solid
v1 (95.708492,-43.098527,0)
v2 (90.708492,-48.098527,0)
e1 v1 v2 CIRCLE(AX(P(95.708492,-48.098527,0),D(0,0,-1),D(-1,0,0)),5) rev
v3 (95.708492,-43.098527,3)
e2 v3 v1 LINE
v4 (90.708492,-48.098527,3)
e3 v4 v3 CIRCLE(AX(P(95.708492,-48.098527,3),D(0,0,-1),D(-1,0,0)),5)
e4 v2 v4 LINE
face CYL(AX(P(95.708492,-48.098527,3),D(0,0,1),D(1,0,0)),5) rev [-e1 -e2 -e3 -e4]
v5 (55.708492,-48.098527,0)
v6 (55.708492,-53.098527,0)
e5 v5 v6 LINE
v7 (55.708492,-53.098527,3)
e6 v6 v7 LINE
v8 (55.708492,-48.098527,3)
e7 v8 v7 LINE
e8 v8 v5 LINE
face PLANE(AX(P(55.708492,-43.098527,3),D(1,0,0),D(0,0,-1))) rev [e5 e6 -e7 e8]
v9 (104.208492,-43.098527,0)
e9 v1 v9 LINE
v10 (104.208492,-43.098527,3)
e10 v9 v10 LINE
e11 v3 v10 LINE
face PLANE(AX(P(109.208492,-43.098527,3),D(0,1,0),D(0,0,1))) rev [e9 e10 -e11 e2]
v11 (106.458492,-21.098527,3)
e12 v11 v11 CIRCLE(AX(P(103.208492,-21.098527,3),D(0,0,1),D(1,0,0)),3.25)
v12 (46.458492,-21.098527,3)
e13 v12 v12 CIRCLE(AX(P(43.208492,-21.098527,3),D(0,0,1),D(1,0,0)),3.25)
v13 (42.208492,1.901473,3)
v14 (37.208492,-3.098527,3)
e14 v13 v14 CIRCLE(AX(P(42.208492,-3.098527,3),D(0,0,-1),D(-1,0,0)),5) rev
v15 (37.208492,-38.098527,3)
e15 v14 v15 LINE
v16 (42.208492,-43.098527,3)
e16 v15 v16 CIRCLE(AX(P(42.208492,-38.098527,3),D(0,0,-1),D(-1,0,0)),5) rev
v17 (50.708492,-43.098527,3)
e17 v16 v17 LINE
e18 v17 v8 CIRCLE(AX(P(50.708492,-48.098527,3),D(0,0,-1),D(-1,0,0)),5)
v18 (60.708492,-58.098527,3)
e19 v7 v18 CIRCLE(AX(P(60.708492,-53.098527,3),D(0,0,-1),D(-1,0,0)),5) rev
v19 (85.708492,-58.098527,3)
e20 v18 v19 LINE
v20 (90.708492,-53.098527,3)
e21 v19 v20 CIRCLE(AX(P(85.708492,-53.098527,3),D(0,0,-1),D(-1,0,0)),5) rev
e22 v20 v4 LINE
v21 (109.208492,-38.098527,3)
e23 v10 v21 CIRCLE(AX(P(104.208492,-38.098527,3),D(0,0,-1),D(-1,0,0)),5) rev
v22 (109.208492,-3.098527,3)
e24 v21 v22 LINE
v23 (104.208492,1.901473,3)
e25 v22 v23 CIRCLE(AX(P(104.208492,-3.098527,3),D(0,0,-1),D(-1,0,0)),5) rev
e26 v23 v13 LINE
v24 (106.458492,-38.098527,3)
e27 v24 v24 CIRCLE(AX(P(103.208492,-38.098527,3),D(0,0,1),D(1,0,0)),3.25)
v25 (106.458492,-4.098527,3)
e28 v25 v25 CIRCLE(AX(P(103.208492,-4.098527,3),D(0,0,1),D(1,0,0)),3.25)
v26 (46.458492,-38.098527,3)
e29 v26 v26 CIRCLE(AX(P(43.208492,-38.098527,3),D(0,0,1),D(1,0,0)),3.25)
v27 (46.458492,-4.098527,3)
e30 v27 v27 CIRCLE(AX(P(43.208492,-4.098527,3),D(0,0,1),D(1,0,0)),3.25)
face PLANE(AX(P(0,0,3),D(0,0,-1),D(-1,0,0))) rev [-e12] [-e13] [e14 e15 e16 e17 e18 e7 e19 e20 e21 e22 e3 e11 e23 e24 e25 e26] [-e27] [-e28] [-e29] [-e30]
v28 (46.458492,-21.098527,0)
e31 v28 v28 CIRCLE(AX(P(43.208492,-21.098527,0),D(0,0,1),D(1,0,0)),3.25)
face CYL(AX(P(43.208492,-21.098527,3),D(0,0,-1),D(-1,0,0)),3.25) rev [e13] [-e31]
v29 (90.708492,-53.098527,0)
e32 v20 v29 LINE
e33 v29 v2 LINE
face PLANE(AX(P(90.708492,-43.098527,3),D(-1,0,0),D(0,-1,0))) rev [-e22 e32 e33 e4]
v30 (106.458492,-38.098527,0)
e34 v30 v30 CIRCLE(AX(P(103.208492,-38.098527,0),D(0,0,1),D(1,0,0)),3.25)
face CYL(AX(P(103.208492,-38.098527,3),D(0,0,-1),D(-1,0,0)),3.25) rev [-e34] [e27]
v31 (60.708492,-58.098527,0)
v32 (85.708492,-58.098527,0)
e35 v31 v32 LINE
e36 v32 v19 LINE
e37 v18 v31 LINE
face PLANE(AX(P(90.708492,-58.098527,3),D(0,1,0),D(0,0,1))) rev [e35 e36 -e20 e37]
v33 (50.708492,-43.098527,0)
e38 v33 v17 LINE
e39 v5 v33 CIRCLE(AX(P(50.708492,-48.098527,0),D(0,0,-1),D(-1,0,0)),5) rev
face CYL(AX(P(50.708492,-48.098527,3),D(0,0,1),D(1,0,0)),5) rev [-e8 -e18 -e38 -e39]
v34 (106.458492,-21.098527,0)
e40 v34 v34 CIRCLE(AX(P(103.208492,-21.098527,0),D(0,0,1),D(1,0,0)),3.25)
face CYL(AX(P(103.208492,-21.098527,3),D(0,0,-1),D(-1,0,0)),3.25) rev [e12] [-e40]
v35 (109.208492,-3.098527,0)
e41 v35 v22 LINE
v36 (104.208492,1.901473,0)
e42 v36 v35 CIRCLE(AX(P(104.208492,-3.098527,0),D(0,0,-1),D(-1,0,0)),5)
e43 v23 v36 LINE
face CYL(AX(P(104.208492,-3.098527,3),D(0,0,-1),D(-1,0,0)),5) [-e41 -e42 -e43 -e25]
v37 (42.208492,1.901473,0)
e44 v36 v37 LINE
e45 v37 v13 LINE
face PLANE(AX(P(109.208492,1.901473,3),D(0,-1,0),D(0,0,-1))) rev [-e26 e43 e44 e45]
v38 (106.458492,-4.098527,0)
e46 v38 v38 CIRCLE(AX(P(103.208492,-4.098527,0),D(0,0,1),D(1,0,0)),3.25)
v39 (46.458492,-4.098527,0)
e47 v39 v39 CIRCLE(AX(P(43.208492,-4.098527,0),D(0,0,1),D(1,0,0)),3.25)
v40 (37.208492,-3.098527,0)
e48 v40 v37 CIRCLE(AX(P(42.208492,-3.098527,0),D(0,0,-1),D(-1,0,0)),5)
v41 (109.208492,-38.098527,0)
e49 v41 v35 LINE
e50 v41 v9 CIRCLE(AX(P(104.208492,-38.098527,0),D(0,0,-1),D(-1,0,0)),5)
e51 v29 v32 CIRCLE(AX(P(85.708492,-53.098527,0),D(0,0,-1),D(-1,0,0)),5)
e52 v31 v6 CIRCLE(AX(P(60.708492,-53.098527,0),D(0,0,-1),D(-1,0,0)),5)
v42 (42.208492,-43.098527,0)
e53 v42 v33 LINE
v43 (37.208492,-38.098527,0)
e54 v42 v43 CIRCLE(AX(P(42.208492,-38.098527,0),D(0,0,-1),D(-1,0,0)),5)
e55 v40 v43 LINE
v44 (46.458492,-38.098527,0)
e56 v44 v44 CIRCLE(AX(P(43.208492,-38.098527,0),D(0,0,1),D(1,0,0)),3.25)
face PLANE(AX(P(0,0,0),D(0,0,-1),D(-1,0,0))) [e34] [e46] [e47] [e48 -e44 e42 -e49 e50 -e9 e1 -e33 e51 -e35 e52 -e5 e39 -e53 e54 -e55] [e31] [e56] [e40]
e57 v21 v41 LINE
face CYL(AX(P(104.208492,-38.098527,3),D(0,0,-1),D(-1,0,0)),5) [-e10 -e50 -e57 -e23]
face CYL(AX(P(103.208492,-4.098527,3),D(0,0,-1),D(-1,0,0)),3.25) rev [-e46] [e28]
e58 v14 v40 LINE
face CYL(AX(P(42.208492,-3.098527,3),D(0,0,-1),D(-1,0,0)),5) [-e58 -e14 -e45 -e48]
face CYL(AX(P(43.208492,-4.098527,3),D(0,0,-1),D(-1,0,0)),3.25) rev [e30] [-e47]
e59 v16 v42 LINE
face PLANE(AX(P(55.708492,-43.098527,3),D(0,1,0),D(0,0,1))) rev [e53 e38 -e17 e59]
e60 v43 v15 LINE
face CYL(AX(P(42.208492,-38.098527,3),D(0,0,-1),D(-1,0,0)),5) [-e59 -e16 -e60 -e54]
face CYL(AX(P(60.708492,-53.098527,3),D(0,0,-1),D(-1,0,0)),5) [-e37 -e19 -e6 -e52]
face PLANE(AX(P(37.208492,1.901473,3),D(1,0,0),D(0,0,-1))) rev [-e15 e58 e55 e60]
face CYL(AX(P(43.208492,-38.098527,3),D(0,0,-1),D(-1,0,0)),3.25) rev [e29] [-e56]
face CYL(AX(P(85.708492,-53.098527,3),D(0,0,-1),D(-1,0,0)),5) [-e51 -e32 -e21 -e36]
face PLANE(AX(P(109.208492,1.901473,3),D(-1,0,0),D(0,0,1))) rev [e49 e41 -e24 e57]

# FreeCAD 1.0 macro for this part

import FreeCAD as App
import Part
import Sketcher
from FreeCAD import Vector


def edges_at(feature, points):
    """Names of the edges that pass closest to the given points."""
    edges = feature.Shape.Edges
    near = lambda p: min(range(len(edges)), key=lambda i: edges[i].distToShape(Part.Vertex(*p))[0])
    return sorted({f"Edge{near(p) + 1}" for p in points})


def add_polygon(sketch, points):
    """Adds a closed chain of lines whose ends are joined by coincident constraints."""
    first, n = sketch.GeometryCount, len(points)
    for a, b in zip(points, points[1:] + points[:1]):
        sketch.addGeometry(Part.LineSegment(App.Vector(*a, 0), App.Vector(*b, 0)), False)
    for i in range(n):
        sketch.addConstraint(Sketcher.Constraint("Coincident", first + i, 2, first + (i + 1) % n, 1))

doc = App.newDocument("Part")
body = doc.addObject("PartDesign::Body", "Body")

sketch1 = body.newObject("Sketcher::SketchObject", "Sketch")
sketch1.AttachmentSupport = (doc.getObject("XY_Plane"), [""])
sketch1.MapMode = "FlatFace"
add_polygon(sketch1, [(109.2, 1.9), (37.2, 1.9), (37.2, -43.1), (55.7, -43.1), (55.7, -58.1), (90.7, -58.1), (90.7, -43.1), (109.2, -43.1)])
sketch1.addGeometry(Part.Circle(Vector(43.2, -38.1, 0), Vector(0, 0, 1), 3.2), False)
sketch1.addGeometry(Part.Circle(Vector(103.2, -38.1, 0), Vector(0, 0, 1), 3.2), False)
sketch1.addGeometry(Part.Circle(Vector(43.2, -21.1, 0), Vector(0, 0, 1), 3.2), False)
sketch1.addGeometry(Part.Circle(Vector(43.2, -4.1, 0), Vector(0, 0, 1), 3.2), False)
sketch1.addGeometry(Part.Circle(Vector(103.2, -21.1, 0), Vector(0, 0, 1), 3.2), False)
sketch1.addGeometry(Part.Circle(Vector(103.2, -4.1, 0), Vector(0, 0, 1), 3.2), False)
sketch1.addConstraint(Sketcher.Constraint("Horizontal", 0))
sketch1.addConstraint(Sketcher.Constraint("Vertical", 1))
sketch1.addConstraint(Sketcher.Constraint("Horizontal", 2))
sketch1.addConstraint(Sketcher.Constraint("Vertical", 3))
sketch1.addConstraint(Sketcher.Constraint("Horizontal", 4))
sketch1.addConstraint(Sketcher.Constraint("Vertical", 5))
sketch1.addConstraint(Sketcher.Constraint("Horizontal", 6))
sketch1.addConstraint(Sketcher.Constraint("Vertical", 7))
sketch1.addConstraint(Sketcher.Constraint("Equal", 8, 9))
sketch1.addConstraint(Sketcher.Constraint("Equal", 9, 10))
sketch1.addConstraint(Sketcher.Constraint("Equal", 10, 11))
sketch1.addConstraint(Sketcher.Constraint("Equal", 11, 12))
sketch1.addConstraint(Sketcher.Constraint("Equal", 12, 13))
sketch1.addConstraint(Sketcher.Constraint("Horizontal", 8, 3, 9, 3))
sketch1.addConstraint(Sketcher.Constraint("Horizontal", 10, 3, 12, 3))
sketch1.addConstraint(Sketcher.Constraint("Horizontal", 11, 3, 13, 3))
sketch1.addConstraint(Sketcher.Constraint("Horizontal", 2, 2, 5, 2))
sketch1.addConstraint(Sketcher.Constraint("Vertical", 8, 3, 10, 3))
sketch1.addConstraint(Sketcher.Constraint("Vertical", 10, 3, 11, 3))
sketch1.addConstraint(Sketcher.Constraint("Vertical", 9, 3, 12, 3))
sketch1.addConstraint(Sketcher.Constraint("Vertical", 12, 3, 13, 3))
sketch1.addConstraint(Sketcher.Constraint("Equal", 2, 6))
sketch1.addConstraint(Sketcher.Constraint("Diameter", 8, 6.5))
sketch1.addConstraint(Sketcher.Constraint("DistanceX", 0, 2, 0, 1, 72.0))
sketch1.addConstraint(Sketcher.Constraint("DistanceX", 4, 1, 4, 2, 35.0))
sketch1.addConstraint(Sketcher.Constraint("DistanceY", 1, 2, 1, 1, 45.0))
sketch1.addConstraint(Sketcher.Constraint("DistanceY", 3, 2, 3, 1, 15.0))
sketch1.addConstraint(Sketcher.Constraint("DistanceX", 8, 3, 9, 3, 60.0))
sketch1.addConstraint(Sketcher.Constraint("DistanceY", 8, 3, 10, 3, 17.0))
sketch1.addConstraint(Sketcher.Constraint("DistanceY", 10, 3, 11, 3, 17.0))
sketch1.addConstraint(Sketcher.Constraint("DistanceX", 0, 2, 11, 3, 6.0))
sketch1.addConstraint(Sketcher.Constraint("DistanceY", 11, 3, 0, 2, 6.0))
sketch1.addConstraint(Sketcher.Constraint("DistanceX", -1, 1, 8, 3, 43.208492))
sketch1.addConstraint(Sketcher.Constraint("DistanceY", 8, 3, -1, 1, 38.098527))
pad1 = body.newObject("PartDesign::Pad", "Pad")
pad1.Profile = sketch1
pad1.Length = 3
doc.recompute()

fillet = body.newObject("PartDesign::Fillet", "Fillet")
fillet.Base = (pad1, edges_at(pad1, [
    (109.208, -43.099, 1.5),
    (90.708, -43.099, 1.5),
    (90.708, -58.099, 1.5),
    (55.708, -58.099, 1.5),
    (55.708, -43.099, 1.5),
    (37.208, -43.099, 1.5),
    (37.208, 1.901, 1.5),
    (109.208, 1.901, 1.5),
]))
fillet.Radius = 5

doc.recompute()
